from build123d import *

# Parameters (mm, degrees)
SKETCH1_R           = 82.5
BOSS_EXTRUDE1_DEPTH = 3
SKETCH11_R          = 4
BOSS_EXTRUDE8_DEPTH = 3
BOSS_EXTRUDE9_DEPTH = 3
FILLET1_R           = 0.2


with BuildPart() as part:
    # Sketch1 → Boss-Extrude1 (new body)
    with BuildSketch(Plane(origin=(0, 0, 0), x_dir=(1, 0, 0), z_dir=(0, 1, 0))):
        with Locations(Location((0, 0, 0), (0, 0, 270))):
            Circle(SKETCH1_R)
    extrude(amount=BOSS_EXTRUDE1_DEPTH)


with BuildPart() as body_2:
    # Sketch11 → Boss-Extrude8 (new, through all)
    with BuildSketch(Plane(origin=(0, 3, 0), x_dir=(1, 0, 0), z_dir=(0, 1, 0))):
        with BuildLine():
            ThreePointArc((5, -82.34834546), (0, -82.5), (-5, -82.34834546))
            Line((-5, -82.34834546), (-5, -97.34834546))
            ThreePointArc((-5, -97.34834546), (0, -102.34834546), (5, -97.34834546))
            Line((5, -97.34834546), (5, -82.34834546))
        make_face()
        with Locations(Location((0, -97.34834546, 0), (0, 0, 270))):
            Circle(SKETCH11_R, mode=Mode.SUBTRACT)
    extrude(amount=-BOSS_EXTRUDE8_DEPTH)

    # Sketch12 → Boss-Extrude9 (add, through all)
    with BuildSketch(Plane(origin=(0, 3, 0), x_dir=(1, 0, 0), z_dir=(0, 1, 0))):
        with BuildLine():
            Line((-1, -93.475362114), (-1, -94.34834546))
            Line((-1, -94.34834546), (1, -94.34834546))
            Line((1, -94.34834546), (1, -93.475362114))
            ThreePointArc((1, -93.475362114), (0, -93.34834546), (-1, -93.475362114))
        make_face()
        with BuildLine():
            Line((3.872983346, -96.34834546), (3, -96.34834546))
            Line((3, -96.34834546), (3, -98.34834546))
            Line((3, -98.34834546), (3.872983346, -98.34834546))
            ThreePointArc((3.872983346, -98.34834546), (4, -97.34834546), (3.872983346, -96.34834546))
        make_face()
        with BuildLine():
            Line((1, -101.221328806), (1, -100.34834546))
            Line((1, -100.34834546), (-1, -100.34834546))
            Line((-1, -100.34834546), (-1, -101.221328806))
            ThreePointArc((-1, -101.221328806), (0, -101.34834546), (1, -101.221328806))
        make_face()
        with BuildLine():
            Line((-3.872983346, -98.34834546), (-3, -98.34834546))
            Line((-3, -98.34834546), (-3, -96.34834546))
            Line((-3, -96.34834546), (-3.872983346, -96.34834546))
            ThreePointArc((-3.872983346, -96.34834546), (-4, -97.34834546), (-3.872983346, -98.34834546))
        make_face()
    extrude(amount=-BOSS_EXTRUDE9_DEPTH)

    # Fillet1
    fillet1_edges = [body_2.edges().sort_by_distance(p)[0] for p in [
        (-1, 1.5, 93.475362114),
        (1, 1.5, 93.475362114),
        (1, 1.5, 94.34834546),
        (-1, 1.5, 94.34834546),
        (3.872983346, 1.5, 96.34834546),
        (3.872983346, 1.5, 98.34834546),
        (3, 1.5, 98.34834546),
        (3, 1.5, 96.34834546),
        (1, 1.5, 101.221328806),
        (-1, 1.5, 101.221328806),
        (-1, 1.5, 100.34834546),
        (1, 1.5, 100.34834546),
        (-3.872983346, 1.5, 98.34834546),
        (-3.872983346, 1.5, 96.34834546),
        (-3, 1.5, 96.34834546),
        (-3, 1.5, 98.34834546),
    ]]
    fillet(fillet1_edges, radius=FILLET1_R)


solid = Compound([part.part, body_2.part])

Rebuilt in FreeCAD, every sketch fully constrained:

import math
import FreeCAD as App
import Part
import Sketcher
Q = App.Units.Quantity


def edges_at(feature, points):
    """Names of the edges that pass closest to the given points."""
    edges = feature.Shape.Edges
    near = lambda p: min(range(len(edges)), key=lambda i: edges[i].distToShape(Part.Vertex(*p))[0])
    return sorted({f"Edge{near(p) + 1}" for p in points})

doc = App.newDocument("Part")
body = doc.addObject("PartDesign::Body", "Body")

sketch1 = body.newObject("Sketcher::SketchObject", "Sketch")
sketch1.AttachmentSupport = (doc.getObject("XZ_Plane"), [""])
sketch1.MapMode = "FlatFace"
sketch1.addGeometry(Part.Circle(App.Vector(0, 0, 0), App.Vector(0, 0, 1), 82.5), False)
sketch1.addConstraint(Sketcher.Constraint("Coincident", 0, 3, -1, 1))
sketch1.addConstraint(Sketcher.Constraint("Diameter", 0, Q("165 mm")))
pad1 = body.newObject("PartDesign::Pad", "Pad")
pad1.Profile = sketch1
pad1.Length = 3
pad1.Reversed = True
body2 = doc.addObject("PartDesign::Body", "Body001")

sketch2 = body2.newObject("Sketcher::SketchObject", "Sketch001")
sketch2.AttachmentSupport = (doc.getObject("XZ_Plane001"), [""])
sketch2.MapMode = "FlatFace"
sketch2.AttachmentOffset = App.Placement(App.Vector(0, 0, -3), App.Rotation())
sketch2.addGeometry(Part.ArcOfCircle(Part.Circle(App.Vector(0, 0, 0), App.Vector(0, 0, 1), 82.5), math.radians(86.525399), math.radians(93.474601)), False)
sketch2.addGeometry(Part.LineSegment(App.Vector(-5, 82.348345, 0), App.Vector(-5, 97.348345, 0)), False)
sketch2.addGeometry(Part.ArcOfCircle(Part.Circle(App.Vector(0, 97.348345, 0), App.Vector(0, 0, 1), 5), math.radians(0), math.radians(180)), False)
sketch2.addGeometry(Part.LineSegment(App.Vector(5, 97.348345, 0), App.Vector(5, 82.348345, 0)), False)
sketch2.addGeometry(Part.Circle(App.Vector(0, 97.348345, 0), App.Vector(0, 0, 1), 4), False)
sketch2.addConstraint(Sketcher.Constraint("Coincident", 0, 2, 1, 1))
sketch2.addConstraint(Sketcher.Constraint("Tangent", 1, 2, 2, 2))
sketch2.addConstraint(Sketcher.Constraint("Tangent", 2, 1, 3, 1))
sketch2.addConstraint(Sketcher.Constraint("Coincident", 3, 2, 0, 1))
sketch2.addConstraint(Sketcher.Constraint("Vertical", 1))
sketch2.addConstraint(Sketcher.Constraint("Vertical", 3))
sketch2.addConstraint(Sketcher.Constraint("Coincident", 0, 3, -1, 1))
sketch2.addConstraint(Sketcher.Constraint("Coincident", 4, 3, 2, 3))
sketch2.addConstraint(Sketcher.Constraint("PointOnObject", 2, 3, -2))
sketch2.addConstraint(Sketcher.Constraint("Diameter", 4, Q("8 mm")))
sketch2.addConstraint(Sketcher.Constraint("Radius", 2, Q("5 mm")))
sketch2.addConstraint(Sketcher.Constraint("Radius", 0, Q("82.5 mm")))
sketch2.addConstraint(Sketcher.Constraint("DistanceY", 1, 1, 1, 2, Q("15 mm")))
pad2 = body2.newObject("PartDesign::Pad", "Pad001")
pad2.Profile = sketch2
pad2.Length = 3

sketch3 = body2.newObject("Sketcher::SketchObject", "Sketch002")
sketch3.AttachmentSupport = (doc.getObject("XZ_Plane001"), [""])
sketch3.MapMode = "FlatFace"
sketch3.AttachmentOffset = App.Placement(App.Vector(0, 0, -3), App.Rotation())
sketch3.addGeometry(Part.LineSegment(App.Vector(-1, 93.475362, 0), App.Vector(-1, 94.348345, 0)), False)
sketch3.addGeometry(Part.LineSegment(App.Vector(-1, 94.348345, 0), App.Vector(1, 94.348345, 0)), False)
sketch3.addGeometry(Part.LineSegment(App.Vector(1, 94.348345, 0), App.Vector(1, 93.475362, 0)), False)
sketch3.addGeometry(Part.ArcOfCircle(Part.Circle(App.Vector(0, 97.348345, 0), App.Vector(0, 0, 1), 4), math.radians(-104.477512), math.radians(-75.522488)), False)
sketch3.addGeometry(Part.LineSegment(App.Vector(3.872983, 96.348345, 0), App.Vector(3, 96.348345, 0)), False)
sketch3.addGeometry(Part.LineSegment(App.Vector(3, 96.348345, 0), App.Vector(3, 98.348345, 0)), False)
sketch3.addGeometry(Part.LineSegment(App.Vector(3, 98.348345, 0), App.Vector(3.872983, 98.348345, 0)), False)
sketch3.addGeometry(Part.ArcOfCircle(Part.Circle(App.Vector(0, 97.348345, 0), App.Vector(0, 0, 1), 4), math.radians(-14.477512), math.radians(14.477512)), False)
sketch3.addGeometry(Part.LineSegment(App.Vector(1, 101.221329, 0), App.Vector(1, 100.348345, 0)), False)
sketch3.addGeometry(Part.LineSegment(App.Vector(1, 100.348345, 0), App.Vector(-1, 100.348345, 0)), False)
sketch3.addGeometry(Part.LineSegment(App.Vector(-1, 100.348345, 0), App.Vector(-1, 101.221329, 0)), False)
sketch3.addGeometry(Part.ArcOfCircle(Part.Circle(App.Vector(0, 97.348345, 0), App.Vector(0, 0, 1), 4), math.radians(75.522488), math.radians(104.477512)), False)
sketch3.addGeometry(Part.LineSegment(App.Vector(-3.872983, 98.348345, 0), App.Vector(-3, 98.348345, 0)), False)
sketch3.addGeometry(Part.LineSegment(App.Vector(-3, 98.348345, 0), App.Vector(-3, 96.348345, 0)), False)
sketch3.addGeometry(Part.LineSegment(App.Vector(-3, 96.348345, 0), App.Vector(-3.872983, 96.348345, 0)), False)
sketch3.addGeometry(Part.ArcOfCircle(Part.Circle(App.Vector(0, 97.348345, 0), App.Vector(0, 0, 1), 4), math.radians(165.522488), math.radians(194.477512)), False)
sketch3.addConstraint(Sketcher.Constraint("Coincident", 0, 2, 1, 1))
sketch3.addConstraint(Sketcher.Constraint("Coincident", 1, 2, 2, 1))
sketch3.addConstraint(Sketcher.Constraint("Coincident", 2, 2, 3, 2))
sketch3.addConstraint(Sketcher.Constraint("Coincident", 3, 1, 0, 1))
sketch3.addConstraint(Sketcher.Constraint("Coincident", 4, 2, 5, 1))
sketch3.addConstraint(Sketcher.Constraint("Coincident", 5, 2, 6, 1))
sketch3.addConstraint(Sketcher.Constraint("Coincident", 6, 2, 7, 2))
sketch3.addConstraint(Sketcher.Constraint("Coincident", 7, 1, 4, 1))
sketch3.addConstraint(Sketcher.Constraint("Coincident", 8, 2, 9, 1))
sketch3.addConstraint(Sketcher.Constraint("Coincident", 9, 2, 10, 1))
sketch3.addConstraint(Sketcher.Constraint("Coincident", 10, 2, 11, 2))
sketch3.addConstraint(Sketcher.Constraint("Coincident", 11, 1, 8, 1))
sketch3.addConstraint(Sketcher.Constraint("Coincident", 12, 2, 13, 1))
sketch3.addConstraint(Sketcher.Constraint("Coincident", 13, 2, 14, 1))
sketch3.addConstraint(Sketcher.Constraint("Coincident", 14, 2, 15, 2))
sketch3.addConstraint(Sketcher.Constraint("Coincident", 15, 1, 12, 1))
sketch3.addConstraint(Sketcher.Constraint("Vertical", 0))
sketch3.addConstraint(Sketcher.Constraint("Horizontal", 1))
sketch3.addConstraint(Sketcher.Constraint("Vertical", 2))
sketch3.addConstraint(Sketcher.Constraint("Horizontal", 4))
sketch3.addConstraint(Sketcher.Constraint("Vertical", 5))
sketch3.addConstraint(Sketcher.Constraint("Horizontal", 6))
sketch3.addConstraint(Sketcher.Constraint("Vertical", 8))
sketch3.addConstraint(Sketcher.Constraint("Horizontal", 9))
sketch3.addConstraint(Sketcher.Constraint("Vertical", 10))
sketch3.addConstraint(Sketcher.Constraint("Horizontal", 12))
sketch3.addConstraint(Sketcher.Constraint("Vertical", 13))
sketch3.addConstraint(Sketcher.Constraint("Horizontal", 14))
sketch3.addConstraint(Sketcher.Constraint("Coincident", 7, 3, 3, 3))
sketch3.addConstraint(Sketcher.Constraint("Coincident", 11, 3, 3, 3))
sketch3.addConstraint(Sketcher.Constraint("Coincident", 15, 3, 3, 3))
sketch3.addConstraint(Sketcher.Constraint("Equal", 3, 7))
sketch3.addConstraint(Sketcher.Constraint("Equal", 7, 11))
sketch3.addConstraint(Sketcher.Constraint("Equal", 11, 15))
sketch3.addConstraint(Sketcher.Constraint("Symmetric", 2, 2, 3, 1, -2))
sketch3.addConstraint(Sketcher.Constraint("Symmetric", 5, 2, 12, 2, -2))
sketch3.addConstraint(Sketcher.Constraint("Horizontal", 10, 2, 11, 1))
sketch3.addConstraint(Sketcher.Constraint("Horizontal", 7, 1, 13, 2))
sketch3.addConstraint(Sketcher.Constraint("Vertical", 6, 2, 7, 1))
sketch3.addConstraint(Sketcher.Constraint("Vertical", 2, 2, 8, 2))
sketch3.addConstraint(Sketcher.Constraint("Equal", 14, 0))
sketch3.addConstraint(Sketcher.Constraint("Equal", 9, 5))
sketch3.addConstraint(Sketcher.Constraint("Equal", 2, 8))
sketch3.addConstraint(Sketcher.Constraint("Radius", 3, Q("4 mm")))
sketch3.addConstraint(Sketcher.Constraint("DistanceX", 1, 1, 1, 2, Q("2 mm")))
sketch3.addConstraint(Sketcher.Constraint("DistanceX", -1, 1, 4, 2, Q("3 mm")))
sketch3.addConstraint(Sketcher.Constraint("DistanceY", -1, 1, 10, 2, Q("101.221329 mm")))
pad3 = body2.newObject("PartDesign::Pad", "Pad002")
pad3.Profile = sketch3
pad3.Length = 3
doc.recompute()

fillet = body2.newObject("PartDesign::Fillet", "Fillet")
fillet.Base = (pad3, edges_at(pad3, [
    (-1, 1.5, 93.475),
    (1, 1.5, 93.475),
    (1, 1.5, 94.348),
    (-1, 1.5, 94.348),
    (3.873, 1.5, 96.348),
    (3.873, 1.5, 98.348),
    (3, 1.5, 98.348),
    (3, 1.5, 96.348),
    (1, 1.5, 101.221),
    (-1, 1.5, 101.221),
    (-1, 1.5, 100.348),
    (1, 1.5, 100.348),
    (-3.873, 1.5, 98.348),
    (-3.873, 1.5, 96.348),
    (-3, 1.5, 96.348),
    (-3, 1.5, 98.348),
]))
fillet.Radius = 0.2

doc.recompute()
